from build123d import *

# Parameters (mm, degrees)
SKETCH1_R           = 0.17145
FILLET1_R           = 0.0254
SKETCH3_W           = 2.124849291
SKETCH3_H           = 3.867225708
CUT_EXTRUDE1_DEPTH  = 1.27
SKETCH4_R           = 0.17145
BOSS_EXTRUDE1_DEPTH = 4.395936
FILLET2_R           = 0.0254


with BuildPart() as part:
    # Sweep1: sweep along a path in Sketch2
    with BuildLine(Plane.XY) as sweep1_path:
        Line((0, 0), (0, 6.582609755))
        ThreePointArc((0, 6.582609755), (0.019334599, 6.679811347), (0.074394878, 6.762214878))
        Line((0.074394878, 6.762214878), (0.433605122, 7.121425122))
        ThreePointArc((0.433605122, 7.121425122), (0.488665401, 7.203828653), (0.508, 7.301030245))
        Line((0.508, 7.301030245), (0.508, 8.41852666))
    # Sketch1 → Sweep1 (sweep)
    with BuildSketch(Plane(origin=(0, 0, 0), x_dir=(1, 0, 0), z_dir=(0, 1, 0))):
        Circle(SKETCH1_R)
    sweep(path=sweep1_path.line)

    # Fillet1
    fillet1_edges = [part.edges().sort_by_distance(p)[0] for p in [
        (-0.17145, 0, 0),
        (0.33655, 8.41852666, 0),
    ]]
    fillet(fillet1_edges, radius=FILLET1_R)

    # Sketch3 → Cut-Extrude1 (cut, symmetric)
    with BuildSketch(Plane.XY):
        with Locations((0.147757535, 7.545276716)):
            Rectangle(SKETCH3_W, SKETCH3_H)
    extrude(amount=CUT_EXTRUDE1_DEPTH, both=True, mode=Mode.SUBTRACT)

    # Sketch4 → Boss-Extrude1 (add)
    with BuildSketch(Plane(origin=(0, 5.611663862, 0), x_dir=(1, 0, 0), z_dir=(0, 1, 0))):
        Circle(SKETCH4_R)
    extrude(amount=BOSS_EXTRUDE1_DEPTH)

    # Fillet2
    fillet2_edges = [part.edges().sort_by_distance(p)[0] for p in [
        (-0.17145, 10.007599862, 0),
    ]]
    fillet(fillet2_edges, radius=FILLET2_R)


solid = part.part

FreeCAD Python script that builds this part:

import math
import FreeCAD as App
import Part
import Sketcher
Q = App.Units.Quantity


def edges_at(feature, points):
    """Names of the edges that pass closest to the given points."""
    edges = feature.Shape.Edges
    near = lambda p: min(range(len(edges)), key=lambda i: edges[i].distToShape(Part.Vertex(*p))[0])
    return sorted({f"Edge{near(p) + 1}" for p in points})


def add_polygon(sketch, points):
    """Adds a closed chain of lines whose ends are joined by coincident constraints."""
    first, n = sketch.GeometryCount, len(points)
    for a, b in zip(points, points[1:] + points[:1]):
        sketch.addGeometry(Part.LineSegment(App.Vector(*a, 0), App.Vector(*b, 0)), False)
    for i in range(n):
        sketch.addConstraint(Sketcher.Constraint("Coincident", first + i, 2, first + (i + 1) % n, 1))

doc = App.newDocument("Part")
params = doc.addObject("Spreadsheet::Sheet", "Params")
for row, (alias, value) in enumerate([
    ("sketch2_radius", "0.01 in"),
    ("fillet_radius", "0.001 in"),
    ("pocket1_length", "0.1 in"),
    ("pad1_length", "4.395936 mm"),
    ("fillet2_radius", "0.001 in"),
], start=1):
    params.set(f"A{row}", alias)
    params.set(f"B{row}", "=" + value)
    params.setAlias(f"B{row}", alias)

body = doc.addObject("PartDesign::Body", "Body")

sketch1 = body.newObject("Sketcher::SketchObject", "Sketch")
sketch1.AttachmentSupport = (doc.getObject("XZ_Plane"), [""])
sketch1.MapMode = "FlatFace"
sketch1.addGeometry(Part.Circle(App.Vector(0, 0, 0), App.Vector(0, 0, 1), 0.17145), False)
sketch1.addConstraint([
    Sketcher.Constraint("Coincident", 0, 3, -1, 1),
    Sketcher.Constraint("Diameter", 0, Q("0.0135 in")),
])

sketch2 = body.newObject("Sketcher::SketchObject", "Sketch001")
sketch2.AttachmentSupport = (doc.getObject("XY_Plane"), [""])
sketch2.MapMode = "FlatFace"
sketch2.addGeometry([
    Part.LineSegment(App.Vector(0, 0, 0), App.Vector(0, 6.58261, 0)),
    Part.ArcOfCircle(Part.Circle(App.Vector(0.254, 6.58261, 0), App.Vector(0, 0, 1), 0.254), math.radians(135), math.radians(180)),
    Part.LineSegment(App.Vector(0.074395, 6.762215, 0), App.Vector(0.433605, 7.121425, 0)),
    Part.ArcOfCircle(Part.Circle(App.Vector(0.254, 7.30103, 0), App.Vector(0, 0, 1), 0.254), math.radians(-45), math.radians(0)),
    Part.LineSegment(App.Vector(0.508, 7.30103, 0), App.Vector(0.508, 8.418527, 0)),
], False)
sketch2.addConstraint([
    Sketcher.Constraint("Tangent", 0, 2, 1, 2),
    Sketcher.Constraint("Tangent", 1, 1, 2, 1),
    Sketcher.Constraint("Tangent", 2, 2, 3, 1),
    Sketcher.Constraint("Tangent", 3, 2, 4, 1),
    Sketcher.Constraint("Vertical", 0),
    Sketcher.Constraint("Vertical", 4),
    Sketcher.Constraint("Coincident", 0, 1, -1, 1),
    Sketcher.Constraint("Equal", 1, 3),
    Sketcher.Constraint("Vertical", 1, 3, 3, 3),
    Sketcher.Constraint("Radius", 1, Q("0.01 in")),
    Sketcher.Constraint("Angle", 2, Q("45 deg")),
    Sketcher.Constraint("DistanceY", 0, 1, 0, 2, Q("6.58261 mm")),
    Sketcher.Constraint("DistanceY", 2, 2, 4, 2, Q("1.297102 mm")),
])
sketch2.setExpression("Constraints[9]", "Params.sketch2_radius")
doc.recompute()

additivepipe = body.newObject("PartDesign::AdditivePipe", "AdditivePipe")
additivepipe.Profile = sketch1
additivepipe.Spine = (sketch2, ["Edge1", "Edge2", "Edge3", "Edge4", "Edge5"])
doc.recompute()

fillet = body.newObject("PartDesign::Fillet", "Fillet")
fillet.Base = (additivepipe, edges_at(additivepipe, [(-0.171, 0, 0), (0.337, 8.419, 0)]))
fillet.setExpression("Radius", "Params.fillet_radius")

sketch3 = body.newObject("Sketcher::SketchObject", "Sketch002")
sketch3.AttachmentSupport = (doc.getObject("XY_Plane"), [""])
sketch3.MapMode = "FlatFace"
add_polygon(sketch3, [(-0.914667, 9.47889), (-0.914667, 5.611664), (1.210182, 5.611664), (1.210182, 9.47889)])
sketch3.addConstraint([
    Sketcher.Constraint("Vertical", 0),
    Sketcher.Constraint("Horizontal", 1),
    Sketcher.Constraint("Vertical", 2),
    Sketcher.Constraint("Horizontal", 3),
    Sketcher.Constraint("DistanceX", 1, 1, 1, 2, Q("2.124849 mm")),
    Sketcher.Constraint("DistanceY", 0, 2, 0, 1, Q("3.867226 mm")),
    Sketcher.Constraint("DistanceY", -1, 1, 2, 2, Q("9.47889 mm")),
    Sketcher.Constraint("DistanceX", 0, 2, -1, 1, Q("0.914667 mm")),
])
pocket1 = body.newObject("PartDesign::Pocket", "Pocket")
pocket1.Profile = sketch3
pocket1.setExpression("Length", "Params.pocket1_length")
pocket1.Midplane = True

sketch4 = body.newObject("Sketcher::SketchObject", "Sketch003")
sketch4.AttachmentSupport = (doc.getObject("XZ_Plane"), [""])
sketch4.MapMode = "FlatFace"
sketch4.AttachmentOffset = App.Placement(App.Vector(0, 0, -5.611664), App.Rotation())
sketch4.addGeometry(Part.Circle(App.Vector(0, 0, 0), App.Vector(0, 0, 1), 0.17145), False)
sketch4.addConstraint([
    Sketcher.Constraint("Coincident", 0, 3, -1, 1),
    Sketcher.Constraint("Diameter", 0, Q("0.0135 in")),
])
pad1 = body.newObject("PartDesign::Pad", "Pad")
pad1.Profile = sketch4
pad1.setExpression("Length", "Params.pad1_length")
pad1.Reversed = True
doc.recompute()

fillet2 = body.newObject("PartDesign::Fillet", "Fillet001")
fillet2.Base = (pad1, edges_at(pad1, [(-0.171, 10.008, 0)]))
fillet2.setExpression("Radius", "Params.fillet2_radius")

doc.recompute()
